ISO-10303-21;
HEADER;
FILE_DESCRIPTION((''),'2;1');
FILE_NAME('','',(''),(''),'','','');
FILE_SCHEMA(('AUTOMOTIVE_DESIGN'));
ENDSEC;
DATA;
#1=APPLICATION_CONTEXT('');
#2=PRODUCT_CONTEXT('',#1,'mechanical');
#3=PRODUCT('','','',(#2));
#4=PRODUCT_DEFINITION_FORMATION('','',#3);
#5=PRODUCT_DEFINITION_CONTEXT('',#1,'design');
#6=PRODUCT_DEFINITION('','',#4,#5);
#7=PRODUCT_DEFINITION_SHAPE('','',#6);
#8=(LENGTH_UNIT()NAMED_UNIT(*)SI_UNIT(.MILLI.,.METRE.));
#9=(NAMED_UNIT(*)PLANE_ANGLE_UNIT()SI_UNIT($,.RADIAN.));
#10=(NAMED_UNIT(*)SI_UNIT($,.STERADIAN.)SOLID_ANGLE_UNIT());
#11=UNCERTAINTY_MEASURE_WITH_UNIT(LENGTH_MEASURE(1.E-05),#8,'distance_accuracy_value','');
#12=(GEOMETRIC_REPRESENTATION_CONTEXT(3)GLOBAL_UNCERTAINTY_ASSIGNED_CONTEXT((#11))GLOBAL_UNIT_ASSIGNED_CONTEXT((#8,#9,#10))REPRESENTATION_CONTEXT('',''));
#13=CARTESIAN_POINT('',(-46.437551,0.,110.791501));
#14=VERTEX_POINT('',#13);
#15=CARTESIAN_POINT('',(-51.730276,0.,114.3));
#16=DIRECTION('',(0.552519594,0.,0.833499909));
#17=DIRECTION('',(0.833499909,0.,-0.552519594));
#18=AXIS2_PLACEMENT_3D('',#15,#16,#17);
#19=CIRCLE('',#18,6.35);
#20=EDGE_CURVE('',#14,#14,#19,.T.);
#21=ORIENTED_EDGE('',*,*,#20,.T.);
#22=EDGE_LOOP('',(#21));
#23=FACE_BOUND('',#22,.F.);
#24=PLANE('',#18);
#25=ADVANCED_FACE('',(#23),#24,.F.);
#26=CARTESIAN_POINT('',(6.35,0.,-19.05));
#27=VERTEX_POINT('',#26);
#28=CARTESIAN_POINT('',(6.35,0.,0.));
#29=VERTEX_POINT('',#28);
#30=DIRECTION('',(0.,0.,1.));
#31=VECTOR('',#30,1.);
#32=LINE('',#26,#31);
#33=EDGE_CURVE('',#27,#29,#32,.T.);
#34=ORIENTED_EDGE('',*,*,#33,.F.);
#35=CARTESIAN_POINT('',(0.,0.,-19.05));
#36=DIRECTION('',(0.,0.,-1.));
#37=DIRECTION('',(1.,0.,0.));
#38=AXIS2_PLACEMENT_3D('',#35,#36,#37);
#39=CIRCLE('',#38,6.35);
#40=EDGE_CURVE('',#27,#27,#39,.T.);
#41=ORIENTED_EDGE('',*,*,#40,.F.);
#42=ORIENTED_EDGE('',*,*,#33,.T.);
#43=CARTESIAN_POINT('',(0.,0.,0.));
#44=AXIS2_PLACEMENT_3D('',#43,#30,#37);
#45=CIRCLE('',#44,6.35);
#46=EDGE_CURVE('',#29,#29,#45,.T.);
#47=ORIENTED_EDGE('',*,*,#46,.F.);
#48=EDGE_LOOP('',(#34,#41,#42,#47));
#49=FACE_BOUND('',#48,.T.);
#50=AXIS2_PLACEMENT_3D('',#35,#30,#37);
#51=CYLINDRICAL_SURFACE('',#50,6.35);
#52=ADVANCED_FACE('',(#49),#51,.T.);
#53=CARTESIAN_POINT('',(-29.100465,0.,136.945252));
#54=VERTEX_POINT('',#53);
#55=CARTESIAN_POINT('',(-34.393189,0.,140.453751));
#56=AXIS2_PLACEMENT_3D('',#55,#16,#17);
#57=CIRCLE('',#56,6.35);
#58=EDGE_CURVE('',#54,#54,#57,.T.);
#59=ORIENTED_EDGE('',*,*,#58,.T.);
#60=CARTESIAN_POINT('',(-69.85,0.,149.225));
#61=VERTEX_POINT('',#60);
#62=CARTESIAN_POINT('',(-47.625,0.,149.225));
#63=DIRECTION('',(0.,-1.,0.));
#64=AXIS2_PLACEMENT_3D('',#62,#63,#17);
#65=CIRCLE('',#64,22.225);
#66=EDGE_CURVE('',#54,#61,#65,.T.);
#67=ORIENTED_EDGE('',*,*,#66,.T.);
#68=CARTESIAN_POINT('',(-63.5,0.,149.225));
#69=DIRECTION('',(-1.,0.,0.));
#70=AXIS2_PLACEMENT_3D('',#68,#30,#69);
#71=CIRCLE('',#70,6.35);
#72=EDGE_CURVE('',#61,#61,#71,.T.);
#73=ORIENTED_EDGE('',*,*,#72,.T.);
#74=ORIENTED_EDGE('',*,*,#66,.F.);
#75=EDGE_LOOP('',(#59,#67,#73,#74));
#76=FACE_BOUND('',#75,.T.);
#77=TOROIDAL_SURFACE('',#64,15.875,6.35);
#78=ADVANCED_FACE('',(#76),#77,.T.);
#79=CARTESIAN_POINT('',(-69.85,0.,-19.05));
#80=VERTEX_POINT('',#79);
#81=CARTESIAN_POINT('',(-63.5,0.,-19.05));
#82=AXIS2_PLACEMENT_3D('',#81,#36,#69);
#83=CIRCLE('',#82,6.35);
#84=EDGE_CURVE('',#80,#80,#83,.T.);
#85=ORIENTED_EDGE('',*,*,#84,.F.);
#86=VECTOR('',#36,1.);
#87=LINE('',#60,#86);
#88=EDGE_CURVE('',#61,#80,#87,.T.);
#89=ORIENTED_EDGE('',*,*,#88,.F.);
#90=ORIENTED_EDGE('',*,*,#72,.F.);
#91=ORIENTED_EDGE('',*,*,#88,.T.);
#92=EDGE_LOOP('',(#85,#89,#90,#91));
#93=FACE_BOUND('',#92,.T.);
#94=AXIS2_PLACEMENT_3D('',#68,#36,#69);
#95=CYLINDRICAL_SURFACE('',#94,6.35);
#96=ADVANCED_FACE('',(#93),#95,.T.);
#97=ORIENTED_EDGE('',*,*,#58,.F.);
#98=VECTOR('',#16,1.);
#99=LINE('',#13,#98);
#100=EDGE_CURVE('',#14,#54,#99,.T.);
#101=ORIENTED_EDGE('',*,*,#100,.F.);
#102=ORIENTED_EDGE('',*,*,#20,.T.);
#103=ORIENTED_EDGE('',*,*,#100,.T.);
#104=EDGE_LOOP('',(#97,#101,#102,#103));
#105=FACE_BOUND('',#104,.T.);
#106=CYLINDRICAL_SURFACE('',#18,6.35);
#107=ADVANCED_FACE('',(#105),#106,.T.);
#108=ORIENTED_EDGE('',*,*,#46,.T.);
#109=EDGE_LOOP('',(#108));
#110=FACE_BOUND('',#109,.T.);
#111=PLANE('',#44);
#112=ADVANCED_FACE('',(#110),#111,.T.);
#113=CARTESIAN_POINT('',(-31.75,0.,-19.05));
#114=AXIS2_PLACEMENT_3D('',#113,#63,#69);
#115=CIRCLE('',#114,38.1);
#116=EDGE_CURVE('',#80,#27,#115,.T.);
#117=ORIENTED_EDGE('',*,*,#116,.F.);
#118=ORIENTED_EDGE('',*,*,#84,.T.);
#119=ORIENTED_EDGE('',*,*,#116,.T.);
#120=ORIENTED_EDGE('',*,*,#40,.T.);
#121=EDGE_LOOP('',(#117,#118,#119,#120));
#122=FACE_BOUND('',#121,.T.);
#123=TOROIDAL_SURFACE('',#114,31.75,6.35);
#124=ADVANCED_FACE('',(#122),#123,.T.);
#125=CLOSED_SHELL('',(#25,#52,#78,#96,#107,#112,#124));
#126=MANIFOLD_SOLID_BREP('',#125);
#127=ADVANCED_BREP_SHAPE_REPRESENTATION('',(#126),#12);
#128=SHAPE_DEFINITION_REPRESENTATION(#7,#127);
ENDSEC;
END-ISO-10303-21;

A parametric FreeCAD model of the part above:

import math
import FreeCAD as App
import Part
import Sketcher
from FreeCAD import Vector
Q = App.Units.Quantity

doc = App.newDocument("Part")
body = doc.addObject("PartDesign::Body", "Body")

# Sketch on XY plane
sketch1 = body.newObject("Sketcher::SketchObject", "Sketch")
sketch1.AttachmentSupport = (doc.getObject("XY_Plane"), [""])
sketch1.MapMode = "FlatFace"
sketch1.addGeometry(Part.Circle(Vector(0, 0, 0), Vector(0, 0, 1), 6.35), False)
sketch1.addConstraint(Sketcher.Constraint("Coincident", 0, 3, -1, 1))
sketch1.addConstraint(Sketcher.Constraint("Diameter", 0, Q("0.5 in")))

# Sketch on XZ plane
sketch2 = body.newObject("Sketcher::SketchObject", "Sketch001")
sketch2.AttachmentSupport = (doc.getObject("XZ_Plane"), [""])
sketch2.MapMode = "FlatFace"
sketch2.addGeometry(Part.LineSegment(Vector(-51.730276, 114.3, 0), Vector(-34.393189, 140.453751, 0)), False)
sketch2.addGeometry(Part.ArcOfCircle(Part.Circle(Vector(-47.625, 149.225, 0), Vector(0, 0, 1), 15.875), math.radians(-33.54004), math.radians(180)), False)
sketch2.addGeometry(Part.LineSegment(Vector(-63.5, 149.225, 0), Vector(-63.5, -19.05, 0)), False)
sketch2.addGeometry(Part.ArcOfCircle(Part.Circle(Vector(-31.75, -19.05, 0), Vector(0, 0, 1), 31.75), math.radians(180), math.radians(360)), False)
sketch2.addGeometry(Part.LineSegment(Vector(0, -19.05, 0), Vector(0, 0, 0)), False)
sketch2.addConstraint(Sketcher.Constraint("Tangent", 0, 2, 1, 1))
sketch2.addConstraint(Sketcher.Constraint("Tangent", 1, 2, 2, 1))
sketch2.addConstraint(Sketcher.Constraint("Tangent", 2, 2, 3, 1))
sketch2.addConstraint(Sketcher.Constraint("Tangent", 3, 2, 4, 1))
sketch2.addConstraint(Sketcher.Constraint("Vertical", 2))
sketch2.addConstraint(Sketcher.Constraint("Vertical", 4))
sketch2.addConstraint(Sketcher.Constraint("Coincident", 4, 2, -1, 1))
sketch2.addConstraint(Sketcher.Constraint("Radius", 3, Q("1.25 in")))
sketch2.addConstraint(Sketcher.Constraint("Radius", 1, Q("0.625 in")))
sketch2.addConstraint(Sketcher.Constraint("DistanceY", 4, 1, 4, 2, Q("0.75 in")))
sketch2.addConstraint(Sketcher.Constraint("DistanceY", -1, 1, 0, 1, Q("4.5 in")))
sketch2.addConstraint(Sketcher.Constraint("DistanceY", 2, 2, 2, 1, Q("6.625 in")))
sketch2.addConstraint(Sketcher.Constraint("Distance", 0, Q("31.37823 mm")))
doc.recompute()

additivepipe = body.newObject("PartDesign::AdditivePipe", "AdditivePipe")
additivepipe.Profile = sketch1
additivepipe.Spine = (sketch2, ["Edge1", "Edge2", "Edge3", "Edge4", "Edge5"])

doc.recompute()
